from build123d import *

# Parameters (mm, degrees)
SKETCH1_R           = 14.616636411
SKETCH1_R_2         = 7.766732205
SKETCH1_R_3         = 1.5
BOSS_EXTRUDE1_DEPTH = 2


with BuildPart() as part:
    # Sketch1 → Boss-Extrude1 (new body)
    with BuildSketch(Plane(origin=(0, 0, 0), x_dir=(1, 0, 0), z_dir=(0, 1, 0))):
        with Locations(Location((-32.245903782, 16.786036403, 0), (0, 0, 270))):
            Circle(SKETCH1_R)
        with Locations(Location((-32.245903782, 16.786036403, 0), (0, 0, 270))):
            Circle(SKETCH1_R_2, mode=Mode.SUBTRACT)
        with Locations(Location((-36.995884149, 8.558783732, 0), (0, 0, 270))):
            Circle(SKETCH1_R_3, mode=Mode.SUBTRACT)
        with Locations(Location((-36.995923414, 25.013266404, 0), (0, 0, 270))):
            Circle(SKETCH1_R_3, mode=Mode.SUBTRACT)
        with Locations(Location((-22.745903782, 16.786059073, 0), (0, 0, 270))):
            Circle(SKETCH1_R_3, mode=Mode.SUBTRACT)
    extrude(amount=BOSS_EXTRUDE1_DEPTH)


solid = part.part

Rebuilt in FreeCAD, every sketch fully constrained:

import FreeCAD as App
import Part
import Sketcher

V = App.Vector

doc = App.newDocument("Part")
body = doc.addObject("PartDesign::Body", "Body")

sketch1 = doc.addObject("Sketcher::SketchObject", "Sketch")
body.addObject(sketch1)
sketch1.AttachmentSupport = (doc.XZ_Plane, [""])
sketch1.MapMode = "FlatFace"
sketch1.addGeometry([
    Part.Circle(V(-32.2, -16.8, 0), V(0, 0, 1), 14.6),
    Part.Circle(V(-37, -25, 0), V(0, 0, 1), 1.5),
    Part.Circle(V(-32.2, -16.8, 0), V(0, 0, 1), 7.8),
    Part.Circle(V(-37, -8.6, 0), V(0, 0, 1), 1.5),
    Part.Circle(V(-22.7, -16.8, 0), V(0, 0, 1), 1.5),
], False)
sketch1.addConstraint([
    Sketcher.Constraint("Coincident", 2, 3, 0, 3),
    Sketcher.Constraint("Equal", 1, 3),
    Sketcher.Constraint("Equal", 3, 4),
    Sketcher.Constraint("Diameter", 1, 3.0),
    Sketcher.Constraint("DistanceX", 0, 3, 4, 3, 9.5),
    Sketcher.Constraint("Diameter", 0, 29.233273),
    Sketcher.Constraint("Diameter", 2, 15.533464),
    Sketcher.Constraint("DistanceY", 4, 3, -1, 1, 16.786059),
    Sketcher.Constraint("DistanceX", 1, 3, 0, 3, 4.75002),
    Sketcher.Constraint("DistanceY", 1, 3, 0, 3, 8.22723),
    Sketcher.Constraint("DistanceX", 3, 3, 0, 3, 4.74998),
    Sketcher.Constraint("DistanceX", 0, 3, -1, 1, 32.245904),
    Sketcher.Constraint("DistanceY", 0, 3, -1, 1, 16.786036),
    Sketcher.Constraint("DistanceY", 3, 3, -1, 1, 8.558784),
])
pad1 = doc.addObject("PartDesign::Pad", "Pad")
body.addObject(pad1)
pad1.Profile = sketch1
pad1.Length = 2
pad1.Reversed = True

doc.recompute()
